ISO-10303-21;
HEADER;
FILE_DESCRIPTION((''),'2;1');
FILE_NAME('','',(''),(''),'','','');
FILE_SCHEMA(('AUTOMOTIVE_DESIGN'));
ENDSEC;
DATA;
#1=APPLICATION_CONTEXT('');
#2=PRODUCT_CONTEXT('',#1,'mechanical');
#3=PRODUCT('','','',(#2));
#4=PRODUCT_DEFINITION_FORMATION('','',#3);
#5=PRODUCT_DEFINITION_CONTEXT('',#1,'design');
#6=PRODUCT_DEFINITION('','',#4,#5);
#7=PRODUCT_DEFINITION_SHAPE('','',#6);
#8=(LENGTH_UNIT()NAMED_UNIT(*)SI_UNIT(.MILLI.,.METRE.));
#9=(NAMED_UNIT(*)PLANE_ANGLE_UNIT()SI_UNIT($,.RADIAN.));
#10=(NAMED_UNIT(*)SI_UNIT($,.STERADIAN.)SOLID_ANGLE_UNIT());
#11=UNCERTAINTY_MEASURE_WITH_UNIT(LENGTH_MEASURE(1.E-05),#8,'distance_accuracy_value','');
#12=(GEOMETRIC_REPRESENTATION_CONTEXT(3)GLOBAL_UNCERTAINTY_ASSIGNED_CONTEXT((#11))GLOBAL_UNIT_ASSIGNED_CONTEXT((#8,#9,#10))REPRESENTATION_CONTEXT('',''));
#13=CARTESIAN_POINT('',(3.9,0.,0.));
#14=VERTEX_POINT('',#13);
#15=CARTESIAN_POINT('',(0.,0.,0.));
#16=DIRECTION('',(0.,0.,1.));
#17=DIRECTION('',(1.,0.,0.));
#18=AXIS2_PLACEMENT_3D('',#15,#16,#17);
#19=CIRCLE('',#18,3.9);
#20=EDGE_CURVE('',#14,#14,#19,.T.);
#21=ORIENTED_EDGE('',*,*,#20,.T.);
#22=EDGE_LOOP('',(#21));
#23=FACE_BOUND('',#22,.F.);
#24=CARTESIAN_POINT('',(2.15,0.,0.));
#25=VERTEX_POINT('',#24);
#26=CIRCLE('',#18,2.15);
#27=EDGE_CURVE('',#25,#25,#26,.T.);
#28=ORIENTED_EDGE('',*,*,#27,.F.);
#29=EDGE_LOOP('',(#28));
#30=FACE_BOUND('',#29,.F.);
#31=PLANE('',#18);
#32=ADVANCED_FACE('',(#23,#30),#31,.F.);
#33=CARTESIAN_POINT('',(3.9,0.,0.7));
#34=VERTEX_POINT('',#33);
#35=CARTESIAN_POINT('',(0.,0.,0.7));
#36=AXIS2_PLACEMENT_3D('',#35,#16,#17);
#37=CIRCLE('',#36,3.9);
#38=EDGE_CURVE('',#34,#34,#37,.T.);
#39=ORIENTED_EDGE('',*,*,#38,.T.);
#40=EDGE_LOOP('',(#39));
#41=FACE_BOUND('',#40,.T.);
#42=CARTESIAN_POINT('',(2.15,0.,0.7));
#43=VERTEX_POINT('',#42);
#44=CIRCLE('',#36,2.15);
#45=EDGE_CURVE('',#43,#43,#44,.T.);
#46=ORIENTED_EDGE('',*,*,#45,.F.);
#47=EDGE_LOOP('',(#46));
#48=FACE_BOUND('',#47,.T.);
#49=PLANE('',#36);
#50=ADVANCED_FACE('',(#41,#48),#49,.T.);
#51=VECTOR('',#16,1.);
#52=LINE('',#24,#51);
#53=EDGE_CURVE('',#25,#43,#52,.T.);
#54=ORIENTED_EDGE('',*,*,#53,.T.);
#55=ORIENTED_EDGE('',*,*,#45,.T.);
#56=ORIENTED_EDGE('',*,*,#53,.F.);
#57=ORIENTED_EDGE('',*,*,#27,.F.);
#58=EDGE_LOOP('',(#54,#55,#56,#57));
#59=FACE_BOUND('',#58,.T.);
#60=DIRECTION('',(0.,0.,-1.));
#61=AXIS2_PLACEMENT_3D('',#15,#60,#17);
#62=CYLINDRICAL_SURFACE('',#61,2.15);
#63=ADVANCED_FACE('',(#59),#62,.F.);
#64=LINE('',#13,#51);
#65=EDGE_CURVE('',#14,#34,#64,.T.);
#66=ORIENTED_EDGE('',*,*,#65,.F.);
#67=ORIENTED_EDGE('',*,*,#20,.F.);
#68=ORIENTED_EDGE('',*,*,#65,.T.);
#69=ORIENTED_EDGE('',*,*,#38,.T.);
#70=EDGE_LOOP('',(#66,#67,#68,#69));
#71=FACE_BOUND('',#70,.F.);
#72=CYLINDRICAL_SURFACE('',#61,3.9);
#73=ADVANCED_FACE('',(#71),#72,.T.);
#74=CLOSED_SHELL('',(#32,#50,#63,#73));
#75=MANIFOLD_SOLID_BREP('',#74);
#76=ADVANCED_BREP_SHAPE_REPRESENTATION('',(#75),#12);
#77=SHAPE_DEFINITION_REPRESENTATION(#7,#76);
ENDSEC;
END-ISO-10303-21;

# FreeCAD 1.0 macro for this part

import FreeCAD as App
import Part
import Sketcher
Q = App.Units.Quantity

doc = App.newDocument("Part")
body = doc.addObject("PartDesign::Body", "Body")

sketch1 = body.newObject("Sketcher::SketchObject", "Sketch")
sketch1.AttachmentSupport = (doc.getObject("XY_Plane"), [""])
sketch1.MapMode = "FlatFace"
sketch1.addGeometry([
    Part.Circle(App.Vector(0, 0, 0), App.Vector(0, 0, 1), 3.9),
    Part.Circle(App.Vector(0, 0, 0), App.Vector(0, 0, 1), 2.1),
], False)
sketch1.addConstraint([
    Sketcher.Constraint("Coincident", 0, 3, -1, 1),
    Sketcher.Constraint("Coincident", 1, 3, -1, 1),
    Sketcher.Constraint("Diameter", 0, Q("7.8 mm")),
    Sketcher.Constraint("Diameter", 1, Q("4.3 mm")),
])
pad1 = body.newObject("PartDesign::Pad", "Pad")
pad1.Profile = sketch1
pad1.Length = 0.7

doc.recompute()
